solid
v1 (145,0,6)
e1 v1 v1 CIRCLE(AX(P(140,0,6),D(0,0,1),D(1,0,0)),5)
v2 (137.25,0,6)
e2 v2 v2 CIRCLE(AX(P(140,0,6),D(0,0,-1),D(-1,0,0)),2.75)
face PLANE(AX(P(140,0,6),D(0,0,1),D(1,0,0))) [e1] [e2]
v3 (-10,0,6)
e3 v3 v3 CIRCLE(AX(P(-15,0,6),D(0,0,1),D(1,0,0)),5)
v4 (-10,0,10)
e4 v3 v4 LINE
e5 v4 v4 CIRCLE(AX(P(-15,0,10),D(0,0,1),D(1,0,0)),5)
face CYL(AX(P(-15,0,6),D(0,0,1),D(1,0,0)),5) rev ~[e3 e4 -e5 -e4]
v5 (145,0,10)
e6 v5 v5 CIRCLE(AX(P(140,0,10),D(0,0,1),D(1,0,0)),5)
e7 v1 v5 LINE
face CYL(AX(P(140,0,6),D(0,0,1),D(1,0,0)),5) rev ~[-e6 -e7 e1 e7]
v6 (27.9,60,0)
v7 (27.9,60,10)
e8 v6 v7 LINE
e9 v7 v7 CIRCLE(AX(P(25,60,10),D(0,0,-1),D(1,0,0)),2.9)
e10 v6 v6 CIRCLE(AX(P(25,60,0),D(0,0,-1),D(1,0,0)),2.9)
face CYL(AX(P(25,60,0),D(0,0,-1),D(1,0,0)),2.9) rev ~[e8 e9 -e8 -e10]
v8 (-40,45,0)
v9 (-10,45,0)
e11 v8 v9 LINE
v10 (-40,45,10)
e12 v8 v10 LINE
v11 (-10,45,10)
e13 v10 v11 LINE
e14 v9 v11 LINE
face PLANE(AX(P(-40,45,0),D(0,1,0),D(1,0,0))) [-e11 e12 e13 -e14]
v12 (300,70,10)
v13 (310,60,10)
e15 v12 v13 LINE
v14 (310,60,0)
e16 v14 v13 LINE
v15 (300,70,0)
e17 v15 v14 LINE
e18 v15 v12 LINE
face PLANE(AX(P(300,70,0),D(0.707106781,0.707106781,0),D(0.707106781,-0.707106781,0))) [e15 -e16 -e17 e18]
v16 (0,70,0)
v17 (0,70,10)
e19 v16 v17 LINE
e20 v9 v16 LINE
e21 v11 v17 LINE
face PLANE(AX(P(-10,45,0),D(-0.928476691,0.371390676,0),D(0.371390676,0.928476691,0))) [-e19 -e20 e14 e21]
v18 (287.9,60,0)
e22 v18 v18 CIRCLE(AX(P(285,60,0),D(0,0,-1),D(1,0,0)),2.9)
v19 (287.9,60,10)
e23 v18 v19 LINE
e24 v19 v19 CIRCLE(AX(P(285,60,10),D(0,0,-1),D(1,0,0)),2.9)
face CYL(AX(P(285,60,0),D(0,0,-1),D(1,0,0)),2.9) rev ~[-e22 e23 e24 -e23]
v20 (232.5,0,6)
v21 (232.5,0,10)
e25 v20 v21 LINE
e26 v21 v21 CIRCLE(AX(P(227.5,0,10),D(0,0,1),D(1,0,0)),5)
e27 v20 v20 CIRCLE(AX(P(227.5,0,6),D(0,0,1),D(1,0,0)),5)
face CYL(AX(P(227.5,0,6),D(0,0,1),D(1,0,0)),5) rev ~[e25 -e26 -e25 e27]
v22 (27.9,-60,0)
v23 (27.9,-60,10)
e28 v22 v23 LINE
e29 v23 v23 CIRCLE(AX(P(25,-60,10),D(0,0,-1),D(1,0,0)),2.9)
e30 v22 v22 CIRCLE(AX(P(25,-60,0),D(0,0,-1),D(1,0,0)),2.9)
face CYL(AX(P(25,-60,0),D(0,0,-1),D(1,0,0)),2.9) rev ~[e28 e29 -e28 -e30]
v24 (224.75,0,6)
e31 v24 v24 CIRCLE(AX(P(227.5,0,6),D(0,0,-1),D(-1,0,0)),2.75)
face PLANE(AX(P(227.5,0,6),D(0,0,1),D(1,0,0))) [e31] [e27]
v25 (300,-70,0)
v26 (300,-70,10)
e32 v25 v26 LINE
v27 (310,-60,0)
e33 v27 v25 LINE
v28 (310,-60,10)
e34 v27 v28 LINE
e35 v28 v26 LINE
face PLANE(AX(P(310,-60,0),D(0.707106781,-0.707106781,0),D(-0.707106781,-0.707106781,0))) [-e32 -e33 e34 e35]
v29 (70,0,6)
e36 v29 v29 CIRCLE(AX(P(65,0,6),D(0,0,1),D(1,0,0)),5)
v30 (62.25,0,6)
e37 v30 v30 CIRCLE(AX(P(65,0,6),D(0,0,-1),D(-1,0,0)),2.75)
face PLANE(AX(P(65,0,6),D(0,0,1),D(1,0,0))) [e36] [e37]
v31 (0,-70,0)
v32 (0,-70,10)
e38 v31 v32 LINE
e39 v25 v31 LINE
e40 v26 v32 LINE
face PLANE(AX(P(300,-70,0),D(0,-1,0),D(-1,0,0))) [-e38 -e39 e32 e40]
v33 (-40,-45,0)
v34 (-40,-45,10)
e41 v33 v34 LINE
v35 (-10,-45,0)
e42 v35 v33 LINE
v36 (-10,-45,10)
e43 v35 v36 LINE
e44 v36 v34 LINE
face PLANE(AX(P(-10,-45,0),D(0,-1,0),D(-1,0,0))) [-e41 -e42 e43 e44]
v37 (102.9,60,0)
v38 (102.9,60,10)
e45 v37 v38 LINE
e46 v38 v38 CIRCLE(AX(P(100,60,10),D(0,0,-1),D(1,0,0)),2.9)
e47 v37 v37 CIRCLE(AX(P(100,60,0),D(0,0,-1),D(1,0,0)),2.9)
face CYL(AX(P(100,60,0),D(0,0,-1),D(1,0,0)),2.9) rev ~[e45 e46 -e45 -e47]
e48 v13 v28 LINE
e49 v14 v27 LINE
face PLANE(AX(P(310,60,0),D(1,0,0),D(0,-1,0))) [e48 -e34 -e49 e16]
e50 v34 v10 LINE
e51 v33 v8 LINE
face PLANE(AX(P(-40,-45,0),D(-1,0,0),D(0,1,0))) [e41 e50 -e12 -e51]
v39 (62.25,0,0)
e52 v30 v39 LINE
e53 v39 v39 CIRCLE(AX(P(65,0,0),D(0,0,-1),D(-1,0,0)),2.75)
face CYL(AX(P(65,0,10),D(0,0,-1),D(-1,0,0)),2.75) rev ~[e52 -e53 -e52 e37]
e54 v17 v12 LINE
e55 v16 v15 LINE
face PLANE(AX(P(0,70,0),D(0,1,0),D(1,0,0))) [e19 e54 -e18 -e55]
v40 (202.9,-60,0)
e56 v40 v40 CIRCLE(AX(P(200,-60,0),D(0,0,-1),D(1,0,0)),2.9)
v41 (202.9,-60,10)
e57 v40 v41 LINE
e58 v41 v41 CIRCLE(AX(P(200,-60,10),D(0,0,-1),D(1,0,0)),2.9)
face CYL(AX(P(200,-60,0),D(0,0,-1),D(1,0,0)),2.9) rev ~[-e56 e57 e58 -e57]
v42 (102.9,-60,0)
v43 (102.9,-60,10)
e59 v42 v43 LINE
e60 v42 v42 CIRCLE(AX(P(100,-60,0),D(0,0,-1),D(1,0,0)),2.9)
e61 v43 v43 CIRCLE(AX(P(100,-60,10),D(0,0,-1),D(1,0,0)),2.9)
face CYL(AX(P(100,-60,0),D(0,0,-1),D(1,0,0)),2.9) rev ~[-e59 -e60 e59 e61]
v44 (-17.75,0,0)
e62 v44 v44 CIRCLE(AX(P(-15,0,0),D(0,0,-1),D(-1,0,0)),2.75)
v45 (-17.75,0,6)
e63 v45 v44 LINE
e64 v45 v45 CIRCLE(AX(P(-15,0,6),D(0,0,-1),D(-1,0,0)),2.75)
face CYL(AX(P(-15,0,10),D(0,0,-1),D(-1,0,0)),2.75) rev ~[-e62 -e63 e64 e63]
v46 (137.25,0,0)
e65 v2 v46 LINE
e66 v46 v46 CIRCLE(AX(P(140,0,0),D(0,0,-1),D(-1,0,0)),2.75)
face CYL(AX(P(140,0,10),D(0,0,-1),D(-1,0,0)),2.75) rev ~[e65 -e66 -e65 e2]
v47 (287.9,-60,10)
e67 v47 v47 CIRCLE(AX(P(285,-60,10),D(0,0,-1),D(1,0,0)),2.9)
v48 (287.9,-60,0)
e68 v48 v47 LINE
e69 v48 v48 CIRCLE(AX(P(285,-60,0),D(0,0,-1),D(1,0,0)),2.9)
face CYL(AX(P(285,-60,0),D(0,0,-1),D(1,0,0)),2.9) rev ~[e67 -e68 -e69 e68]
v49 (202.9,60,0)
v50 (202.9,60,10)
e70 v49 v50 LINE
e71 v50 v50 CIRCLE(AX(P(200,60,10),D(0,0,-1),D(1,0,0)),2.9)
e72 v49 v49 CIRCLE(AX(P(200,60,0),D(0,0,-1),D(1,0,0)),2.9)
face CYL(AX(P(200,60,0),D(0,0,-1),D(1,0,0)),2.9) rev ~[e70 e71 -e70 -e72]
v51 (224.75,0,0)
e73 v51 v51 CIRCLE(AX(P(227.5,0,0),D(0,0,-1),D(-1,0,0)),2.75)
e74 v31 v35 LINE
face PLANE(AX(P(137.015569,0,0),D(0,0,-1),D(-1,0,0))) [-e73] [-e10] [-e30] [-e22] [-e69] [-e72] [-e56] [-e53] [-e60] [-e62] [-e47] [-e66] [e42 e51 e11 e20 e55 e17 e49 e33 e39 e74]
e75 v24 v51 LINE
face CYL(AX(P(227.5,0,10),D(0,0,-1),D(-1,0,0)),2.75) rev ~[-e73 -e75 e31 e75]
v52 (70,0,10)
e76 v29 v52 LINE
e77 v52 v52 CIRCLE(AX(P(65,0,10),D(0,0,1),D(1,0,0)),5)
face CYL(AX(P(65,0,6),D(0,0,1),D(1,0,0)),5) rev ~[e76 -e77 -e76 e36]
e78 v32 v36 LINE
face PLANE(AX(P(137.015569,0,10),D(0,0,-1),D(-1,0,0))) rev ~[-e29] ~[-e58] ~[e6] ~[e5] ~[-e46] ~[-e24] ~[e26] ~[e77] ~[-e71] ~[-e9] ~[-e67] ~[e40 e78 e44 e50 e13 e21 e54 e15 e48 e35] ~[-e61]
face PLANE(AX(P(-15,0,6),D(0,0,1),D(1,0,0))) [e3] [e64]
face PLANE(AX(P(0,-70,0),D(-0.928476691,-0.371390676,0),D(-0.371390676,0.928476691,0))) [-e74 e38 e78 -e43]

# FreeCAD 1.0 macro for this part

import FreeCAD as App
import Part
import Sketcher

doc = App.newDocument("Part")
params = doc.addObject("Spreadsheet::Sheet", "Params")
for row, (alias, value) in enumerate([
    ("sketch1_width", "300 mm"),
    ("sketch1_width2", "30 mm"),
    ("sketch1_height", "90 mm"),
    ("sketch1_height2", "120 mm"),
    ("pad1_length", "10 mm"),
    ("sketch2_diameter", "5.5 mm"),
    ("hole_diameter", "5.5 mm"),
    ("hole_depth", "25 mm"),
    ("hole_cbore_diameter", "10 mm"),
    ("hole_cbore_depth", "4 mm"),
    ("sketch3_diameter", "5.8 mm"),
    ("pocket1_length", "25 mm"),
], start=1):
    params.set(f"A{row}", alias)
    params.set(f"B{row}", "=" + value)
    params.setAlias(f"B{row}", alias)

body = doc.addObject("PartDesign::Body", "Body")

# Sketch on XY plane
sketch1 = body.newObject("Sketcher::SketchObject", "Sketch")
sketch1.AttachmentSupport = (doc.getObject("XY_Plane"), [""])
sketch1.MapMode = "FlatFace"
sketch1.addGeometry(Part.LineSegment(App.Vector(300, 70, 0), App.Vector(0, 70, 0)), False)
sketch1.addGeometry(Part.LineSegment(App.Vector(0, 70, 0), App.Vector(-10, 45, 0)), False)
sketch1.addGeometry(Part.LineSegment(App.Vector(-10, 45, 0), App.Vector(-40, 45, 0)), False)
sketch1.addGeometry(Part.LineSegment(App.Vector(-40, 45, 0), App.Vector(-40, -45, 0)), False)
sketch1.addGeometry(Part.LineSegment(App.Vector(-40, -45, 0), App.Vector(-10, -45, 0)), False)
sketch1.addGeometry(Part.LineSegment(App.Vector(-10, -45, 0), App.Vector(0, -70, 0)), False)
sketch1.addGeometry(Part.LineSegment(App.Vector(0, -70, 0), App.Vector(300, -70, 0)), False)
sketch1.addGeometry(Part.LineSegment(App.Vector(300, -70, 0), App.Vector(310, -60, 0)), False)
sketch1.addGeometry(Part.LineSegment(App.Vector(310, -60, 0), App.Vector(310, 60, 0)), False)
sketch1.addGeometry(Part.LineSegment(App.Vector(310, 60, 0), App.Vector(300, 70, 0)), False)
sketch1.addConstraint(Sketcher.Constraint("Coincident", 0, 2, 1, 1))
sketch1.addConstraint(Sketcher.Constraint("Coincident", 1, 2, 2, 1))
sketch1.addConstraint(Sketcher.Constraint("Coincident", 2, 2, 3, 1))
sketch1.addConstraint(Sketcher.Constraint("Coincident", 3, 2, 4, 1))
sketch1.addConstraint(Sketcher.Constraint("Coincident", 4, 2, 5, 1))
sketch1.addConstraint(Sketcher.Constraint("Coincident", 5, 2, 6, 1))
sketch1.addConstraint(Sketcher.Constraint("Coincident", 6, 2, 7, 1))
sketch1.addConstraint(Sketcher.Constraint("Coincident", 7, 2, 8, 1))
sketch1.addConstraint(Sketcher.Constraint("Coincident", 8, 2, 9, 1))
sketch1.addConstraint(Sketcher.Constraint("Coincident", 9, 2, 0, 1))
sketch1.addConstraint(Sketcher.Constraint("Horizontal", 0))
sketch1.addConstraint(Sketcher.Constraint("Horizontal", 2))
sketch1.addConstraint(Sketcher.Constraint("Vertical", 3))
sketch1.addConstraint(Sketcher.Constraint("Horizontal", 4))
sketch1.addConstraint(Sketcher.Constraint("Horizontal", 6))
sketch1.addConstraint(Sketcher.Constraint("Vertical", 8))
sketch1.addConstraint(Sketcher.Constraint("Symmetric", 0, 2, 5, 2, -1, 1))
sketch1.addConstraint(Sketcher.Constraint("Symmetric", 1, 2, 4, 2, -1))
sketch1.addConstraint(Sketcher.Constraint("PointOnObject", 0, 2, -2))
sketch1.addConstraint(Sketcher.Constraint("Perpendicular", 7, 9))
sketch1.addConstraint(Sketcher.Constraint("Vertical", 6, 2, 9, 2))
sketch1.addConstraint(Sketcher.Constraint("Equal", 7, 9))
sketch1.addConstraint(Sketcher.Constraint("DistanceX", 0, 2, 0, 1, 300.0))
sketch1.addConstraint(Sketcher.Constraint("DistanceX", 2, 2, 2, 1, 30.0))
sketch1.addConstraint(Sketcher.Constraint("DistanceY", 3, 2, 3, 1, 90.0))
sketch1.addConstraint(Sketcher.Constraint("DistanceY", 8, 1, 8, 2, 120.0))
sketch1.addConstraint(Sketcher.Constraint("DistanceY", -1, 1, 0, 2, 70.0))
sketch1.addConstraint(Sketcher.Constraint("DistanceX", 1, 2, -1, 1, 10.0))
sketch1.setExpression("Constraints[22]", "Params.sketch1_width")
sketch1.setExpression("Constraints[23]", "Params.sketch1_width2")
sketch1.setExpression("Constraints[24]", "Params.sketch1_height")
sketch1.setExpression("Constraints[25]", "Params.sketch1_height2")
pad1 = body.newObject("PartDesign::Pad", "Pad")
pad1.Profile = sketch1
pad1.setExpression("Length", "Params.pad1_length")

# Sketch on XY plane
sketch2 = body.newObject("Sketcher::SketchObject", "Sketch001")
sketch2.AttachmentSupport = (doc.getObject("XY_Plane"), [""])
sketch2.MapMode = "FlatFace"
sketch2.AttachmentOffset = App.Placement(App.Vector(0, 0, 10), App.Rotation())
sketch2.addGeometry(Part.Circle(App.Vector(-15, 0, 0), App.Vector(0, 0, 1), 2.8), False)
sketch2.addGeometry(Part.Circle(App.Vector(65, 0, 0), App.Vector(0, 0, 1), 2.8), False)
sketch2.addGeometry(Part.Circle(App.Vector(140, 0, 0), App.Vector(0, 0, 1), 2.8), False)
sketch2.addGeometry(Part.Circle(App.Vector(227.5, 0, 0), App.Vector(0, 0, 1), 2.8), False)
sketch2.addConstraint(Sketcher.Constraint("Equal", 0, 1))
sketch2.addConstraint(Sketcher.Constraint("Equal", 1, 2))
sketch2.addConstraint(Sketcher.Constraint("Equal", 2, 3))
sketch2.addConstraint(Sketcher.Constraint("PointOnObject", 0, 3, -1))
sketch2.addConstraint(Sketcher.Constraint("PointOnObject", 1, 3, -1))
sketch2.addConstraint(Sketcher.Constraint("PointOnObject", 2, 3, -1))
sketch2.addConstraint(Sketcher.Constraint("PointOnObject", 3, 3, -1))
sketch2.addConstraint(Sketcher.Constraint("Diameter", 0, 5.5))
sketch2.addConstraint(Sketcher.Constraint("DistanceX", 0, 3, -1, 1, 15.0))
sketch2.addConstraint(Sketcher.Constraint("DistanceX", -1, 1, 1, 3, 65.0))
sketch2.addConstraint(Sketcher.Constraint("DistanceX", -1, 1, 2, 3, 140.0))
sketch2.addConstraint(Sketcher.Constraint("DistanceX", -1, 1, 3, 3, 227.5))
sketch2.setExpression("Constraints[7]", "Params.sketch2_diameter")
doc.recompute()
hole = body.newObject("PartDesign::Hole", "Hole")
hole.Profile = sketch2
hole.ThreadType = "None"
hole.setExpression("Diameter", "Params.hole_diameter")
hole.DepthType = "Dimension"
hole.setExpression("Depth", "Params.hole_depth")
hole.DrillPoint = "Flat"
hole.HoleCutType = "Counterbore"
hole.setExpression("HoleCutDiameter", "Params.hole_cbore_diameter")
hole.setExpression("HoleCutDepth", "Params.hole_cbore_depth")

# Sketch on XY plane
sketch3 = body.newObject("Sketcher::SketchObject", "Sketch002")
sketch3.AttachmentSupport = (doc.getObject("XY_Plane"), [""])
sketch3.MapMode = "FlatFace"
sketch3.addGeometry(Part.Circle(App.Vector(25, -60, 0), App.Vector(0, 0, 1), 2.9), False)
sketch3.addGeometry(Part.Circle(App.Vector(100, -60, 0), App.Vector(0, 0, 1), 2.9), False)
sketch3.addGeometry(Part.Circle(App.Vector(200, -60, 0), App.Vector(0, 0, 1), 2.9), False)
sketch3.addGeometry(Part.Circle(App.Vector(285, -60, 0), App.Vector(0, 0, 1), 2.9), False)
sketch3.addGeometry(Part.Circle(App.Vector(25, 60, 0), App.Vector(0, 0, 1), 2.9), False)
sketch3.addGeometry(Part.Circle(App.Vector(100, 60, 0), App.Vector(0, 0, 1), 2.9), False)
sketch3.addGeometry(Part.Circle(App.Vector(200, 60, 0), App.Vector(0, 0, 1), 2.9), False)
sketch3.addGeometry(Part.Circle(App.Vector(285, 60, 0), App.Vector(0, 0, 1), 2.9), False)
sketch3.addConstraint(Sketcher.Constraint("Equal", 0, 1))
sketch3.addConstraint(Sketcher.Constraint("Equal", 1, 2))
sketch3.addConstraint(Sketcher.Constraint("Equal", 2, 3))
sketch3.addConstraint(Sketcher.Constraint("Equal", 3, 4))
sketch3.addConstraint(Sketcher.Constraint("Equal", 4, 5))
sketch3.addConstraint(Sketcher.Constraint("Equal", 5, 6))
sketch3.addConstraint(Sketcher.Constraint("Equal", 6, 7))
sketch3.addConstraint(Sketcher.Constraint("Symmetric", 0, 3, 4, 3, -1))
sketch3.addConstraint(Sketcher.Constraint("Symmetric", 1, 3, 5, 3, -1))
sketch3.addConstraint(Sketcher.Constraint("Symmetric", 2, 3, 6, 3, -1))
sketch3.addConstraint(Sketcher.Constraint("Symmetric", 3, 3, 7, 3, -1))
sketch3.addConstraint(Sketcher.Constraint("Horizontal", 0, 3, 1, 3))
sketch3.addConstraint(Sketcher.Constraint("Horizontal", 1, 3, 2, 3))
sketch3.addConstraint(Sketcher.Constraint("Horizontal", 2, 3, 3, 3))
sketch3.addConstraint(Sketcher.Constraint("Diameter", 0, 5.8))
sketch3.addConstraint(Sketcher.Constraint("DistanceX", -1, 1, 0, 3, 25.0))
sketch3.addConstraint(Sketcher.Constraint("DistanceY", 0, 3, -1, 1, 60.0))
sketch3.addConstraint(Sketcher.Constraint("DistanceX", -1, 1, 1, 3, 100.0))
sketch3.addConstraint(Sketcher.Constraint("DistanceX", -1, 1, 2, 3, 200.0))
sketch3.addConstraint(Sketcher.Constraint("DistanceX", -1, 1, 3, 3, 285.0))
sketch3.setExpression("Constraints[14]", "Params.sketch3_diameter")
pocket1 = body.newObject("PartDesign::Pocket", "Pocket")
pocket1.Profile = sketch3
pocket1.setExpression("Length", "Params.pocket1_length")
pocket1.Reversed = True

doc.recompute()
